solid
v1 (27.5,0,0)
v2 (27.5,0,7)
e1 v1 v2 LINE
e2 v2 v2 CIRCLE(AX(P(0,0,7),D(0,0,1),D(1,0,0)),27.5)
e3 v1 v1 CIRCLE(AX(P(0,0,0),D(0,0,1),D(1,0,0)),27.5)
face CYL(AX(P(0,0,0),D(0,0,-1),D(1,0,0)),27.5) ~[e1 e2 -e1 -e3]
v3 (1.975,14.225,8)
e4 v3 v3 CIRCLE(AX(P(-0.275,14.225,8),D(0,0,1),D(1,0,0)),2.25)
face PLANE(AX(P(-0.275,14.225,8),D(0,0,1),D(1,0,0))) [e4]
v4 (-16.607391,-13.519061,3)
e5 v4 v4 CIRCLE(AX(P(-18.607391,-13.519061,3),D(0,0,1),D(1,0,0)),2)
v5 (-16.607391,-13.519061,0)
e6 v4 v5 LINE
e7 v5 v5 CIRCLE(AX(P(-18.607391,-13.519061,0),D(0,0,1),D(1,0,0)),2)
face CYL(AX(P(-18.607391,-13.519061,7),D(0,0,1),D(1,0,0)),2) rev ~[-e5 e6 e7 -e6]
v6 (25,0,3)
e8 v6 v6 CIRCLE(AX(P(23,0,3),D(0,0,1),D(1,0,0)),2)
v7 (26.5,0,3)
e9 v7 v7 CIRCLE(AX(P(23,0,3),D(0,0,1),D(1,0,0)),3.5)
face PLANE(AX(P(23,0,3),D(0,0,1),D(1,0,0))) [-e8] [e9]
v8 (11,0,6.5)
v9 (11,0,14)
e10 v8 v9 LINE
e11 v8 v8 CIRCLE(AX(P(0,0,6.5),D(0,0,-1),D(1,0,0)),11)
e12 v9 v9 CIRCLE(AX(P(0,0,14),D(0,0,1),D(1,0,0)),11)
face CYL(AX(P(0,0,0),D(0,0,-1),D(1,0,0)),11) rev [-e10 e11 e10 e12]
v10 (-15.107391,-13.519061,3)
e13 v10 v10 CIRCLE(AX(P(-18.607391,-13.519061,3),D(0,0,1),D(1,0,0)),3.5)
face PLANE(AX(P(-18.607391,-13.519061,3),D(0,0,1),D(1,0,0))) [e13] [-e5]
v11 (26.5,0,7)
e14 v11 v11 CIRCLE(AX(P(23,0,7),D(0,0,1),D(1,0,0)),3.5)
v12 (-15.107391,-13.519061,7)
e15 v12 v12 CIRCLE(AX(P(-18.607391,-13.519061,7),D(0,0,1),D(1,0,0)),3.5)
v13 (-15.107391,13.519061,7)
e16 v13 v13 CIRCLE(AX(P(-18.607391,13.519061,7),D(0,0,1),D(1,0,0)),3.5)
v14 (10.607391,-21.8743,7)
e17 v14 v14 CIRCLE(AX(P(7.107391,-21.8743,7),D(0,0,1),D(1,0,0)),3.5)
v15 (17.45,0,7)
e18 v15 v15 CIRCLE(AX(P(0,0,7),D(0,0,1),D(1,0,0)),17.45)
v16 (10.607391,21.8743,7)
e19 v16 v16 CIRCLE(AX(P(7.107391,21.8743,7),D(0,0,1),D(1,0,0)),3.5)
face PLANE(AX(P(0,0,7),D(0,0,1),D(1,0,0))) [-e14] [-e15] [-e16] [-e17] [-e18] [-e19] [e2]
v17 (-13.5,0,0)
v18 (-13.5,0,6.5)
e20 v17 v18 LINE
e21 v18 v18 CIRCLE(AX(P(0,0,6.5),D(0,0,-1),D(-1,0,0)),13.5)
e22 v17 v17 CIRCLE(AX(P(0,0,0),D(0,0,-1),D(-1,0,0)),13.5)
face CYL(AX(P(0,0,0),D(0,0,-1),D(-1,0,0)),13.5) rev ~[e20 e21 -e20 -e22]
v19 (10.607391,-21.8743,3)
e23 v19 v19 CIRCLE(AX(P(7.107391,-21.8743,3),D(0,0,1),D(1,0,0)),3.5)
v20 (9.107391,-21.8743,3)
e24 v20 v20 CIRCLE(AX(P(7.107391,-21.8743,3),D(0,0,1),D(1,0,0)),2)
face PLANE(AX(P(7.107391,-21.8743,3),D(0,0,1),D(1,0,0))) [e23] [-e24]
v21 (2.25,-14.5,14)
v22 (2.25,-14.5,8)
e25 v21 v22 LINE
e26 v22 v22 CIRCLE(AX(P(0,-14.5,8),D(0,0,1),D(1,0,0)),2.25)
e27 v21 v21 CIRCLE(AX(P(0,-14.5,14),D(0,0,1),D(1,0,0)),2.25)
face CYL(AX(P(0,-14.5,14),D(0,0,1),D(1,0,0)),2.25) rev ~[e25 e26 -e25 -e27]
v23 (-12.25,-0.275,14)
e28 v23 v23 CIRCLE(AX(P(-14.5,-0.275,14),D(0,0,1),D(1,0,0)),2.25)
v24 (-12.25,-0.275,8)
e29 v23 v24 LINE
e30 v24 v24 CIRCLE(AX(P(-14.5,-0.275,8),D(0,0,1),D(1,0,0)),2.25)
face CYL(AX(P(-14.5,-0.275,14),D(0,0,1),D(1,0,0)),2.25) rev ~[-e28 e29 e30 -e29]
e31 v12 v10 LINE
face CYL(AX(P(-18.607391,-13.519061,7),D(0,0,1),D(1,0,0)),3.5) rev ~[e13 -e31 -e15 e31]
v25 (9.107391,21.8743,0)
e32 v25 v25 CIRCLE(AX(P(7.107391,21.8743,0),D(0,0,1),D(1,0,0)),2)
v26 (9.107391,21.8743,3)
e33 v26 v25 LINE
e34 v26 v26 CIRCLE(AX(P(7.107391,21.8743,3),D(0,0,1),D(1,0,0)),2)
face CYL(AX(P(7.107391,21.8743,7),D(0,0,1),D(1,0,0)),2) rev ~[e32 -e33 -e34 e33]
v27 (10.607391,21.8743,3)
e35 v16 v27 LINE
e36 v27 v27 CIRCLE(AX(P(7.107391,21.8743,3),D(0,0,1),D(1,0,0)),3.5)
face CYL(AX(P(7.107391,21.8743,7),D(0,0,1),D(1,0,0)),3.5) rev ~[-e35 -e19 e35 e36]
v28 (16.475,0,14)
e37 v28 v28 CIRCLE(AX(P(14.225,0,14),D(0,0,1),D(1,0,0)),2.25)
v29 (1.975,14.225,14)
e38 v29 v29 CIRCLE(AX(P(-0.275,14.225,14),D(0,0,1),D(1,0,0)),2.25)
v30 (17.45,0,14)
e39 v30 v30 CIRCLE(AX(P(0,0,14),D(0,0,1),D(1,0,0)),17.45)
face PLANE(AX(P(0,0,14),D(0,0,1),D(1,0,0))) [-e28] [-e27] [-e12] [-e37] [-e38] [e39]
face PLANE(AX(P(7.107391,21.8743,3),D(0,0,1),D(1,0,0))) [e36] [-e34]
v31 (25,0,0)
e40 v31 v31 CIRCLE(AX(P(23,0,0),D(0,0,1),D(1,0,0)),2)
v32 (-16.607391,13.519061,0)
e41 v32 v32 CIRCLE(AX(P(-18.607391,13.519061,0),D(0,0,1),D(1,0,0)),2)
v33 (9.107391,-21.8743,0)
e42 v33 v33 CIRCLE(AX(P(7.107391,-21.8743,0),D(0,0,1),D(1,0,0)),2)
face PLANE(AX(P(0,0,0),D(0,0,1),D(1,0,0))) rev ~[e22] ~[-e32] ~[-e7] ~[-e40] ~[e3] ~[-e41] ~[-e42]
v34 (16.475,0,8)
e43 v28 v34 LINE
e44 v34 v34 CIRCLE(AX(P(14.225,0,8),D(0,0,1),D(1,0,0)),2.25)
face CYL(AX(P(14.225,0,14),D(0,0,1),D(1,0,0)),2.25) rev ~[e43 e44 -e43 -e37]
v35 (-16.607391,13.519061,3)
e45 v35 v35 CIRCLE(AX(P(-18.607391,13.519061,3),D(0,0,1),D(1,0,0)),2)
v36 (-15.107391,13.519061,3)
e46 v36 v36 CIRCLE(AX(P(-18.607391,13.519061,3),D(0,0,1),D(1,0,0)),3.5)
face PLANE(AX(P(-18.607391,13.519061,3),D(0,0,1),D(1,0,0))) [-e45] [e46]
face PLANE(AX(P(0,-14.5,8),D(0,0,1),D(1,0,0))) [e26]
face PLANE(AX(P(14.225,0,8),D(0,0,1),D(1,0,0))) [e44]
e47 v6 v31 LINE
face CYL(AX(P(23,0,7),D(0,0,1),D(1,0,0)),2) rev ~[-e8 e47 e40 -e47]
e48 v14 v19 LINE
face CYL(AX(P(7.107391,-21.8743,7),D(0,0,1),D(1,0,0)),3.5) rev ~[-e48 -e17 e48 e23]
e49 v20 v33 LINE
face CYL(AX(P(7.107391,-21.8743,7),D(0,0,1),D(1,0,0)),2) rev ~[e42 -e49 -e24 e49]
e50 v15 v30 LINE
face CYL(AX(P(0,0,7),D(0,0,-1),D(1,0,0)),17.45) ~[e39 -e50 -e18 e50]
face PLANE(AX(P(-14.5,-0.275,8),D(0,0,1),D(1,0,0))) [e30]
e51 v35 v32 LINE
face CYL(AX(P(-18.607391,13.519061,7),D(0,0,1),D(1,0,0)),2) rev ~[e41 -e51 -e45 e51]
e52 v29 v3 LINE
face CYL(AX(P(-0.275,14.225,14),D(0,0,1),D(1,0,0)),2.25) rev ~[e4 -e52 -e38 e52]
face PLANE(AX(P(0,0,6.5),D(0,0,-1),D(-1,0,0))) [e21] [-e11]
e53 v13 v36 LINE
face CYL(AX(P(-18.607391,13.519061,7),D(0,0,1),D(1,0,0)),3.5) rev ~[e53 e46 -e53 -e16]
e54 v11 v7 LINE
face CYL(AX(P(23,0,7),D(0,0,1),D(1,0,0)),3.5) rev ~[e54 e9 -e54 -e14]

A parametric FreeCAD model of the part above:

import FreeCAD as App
import Part
import Sketcher

V = App.Vector
Q = App.Units.Quantity

doc = App.newDocument("Part")
body = doc.addObject("PartDesign::Body", "Body")

# Sketch on XY plane
sketch1 = doc.addObject("Sketcher::SketchObject", "Sketch")
body.addObject(sketch1)
sketch1.AttachmentSupport = (doc.XY_Plane, [""])
sketch1.MapMode = "FlatFace"
sketch1.addGeometry(Part.Circle(V(0, 0, 0), V(0, 0, 1), 28), False)
sketch1.addConstraint([
    Sketcher.Constraint("Coincident", 0, 3, -1, 1),
    Sketcher.Constraint("Diameter", 0, Q("55 mm")),
])
pad1 = doc.addObject("PartDesign::Pad", "Pad")
body.addObject(pad1)
pad1.Profile = sketch1
pad1.Length = 7

# Sketch on XY plane
sketch2 = doc.addObject("Sketcher::SketchObject", "Sketch001")
body.addObject(sketch2)
sketch2.AttachmentSupport = (doc.XY_Plane, [""])
sketch2.MapMode = "FlatFace"
sketch2.AttachmentOffset = App.Placement(V(0, 0, 7), App.Rotation())
sketch2.addGeometry([
    Part.Circle(V(0, 0, 0), V(0, 0, 1), 17),
    Part.Circle(V(0, 0, 0), V(0, 0, 1), 11),
], False)
sketch2.addConstraint([
    Sketcher.Constraint("Coincident", 0, 3, -1, 1),
    Sketcher.Constraint("Coincident", 1, 3, -1, 1),
    Sketcher.Constraint("Diameter", 1, Q("22 mm")),
    Sketcher.Constraint("Diameter", 0, Q("34.9 mm")),
])
pad2 = doc.addObject("PartDesign::Pad", "Pad001")
body.addObject(pad2)
pad2.Profile = sketch2
pad2.Length = 7

# Sketch on XY plane
sketch3 = doc.addObject("Sketcher::SketchObject", "Sketch002")
body.addObject(sketch3)
sketch3.AttachmentSupport = (doc.XY_Plane, [""])
sketch3.MapMode = "FlatFace"
sketch3.addGeometry(Part.Circle(V(0, 0, 0), V(0, 0, 1), 11), False)
sketch3.addConstraint([
    Sketcher.Constraint("Coincident", 0, 3, -1, 1),
    Sketcher.Constraint("Diameter", 0, Q("22 mm")),
])
pocket1 = doc.addObject("PartDesign::Pocket", "Pocket")
body.addObject(pocket1)
pocket1.Profile = sketch3
pocket1.Length = 7
pocket1.Reversed = True

# Sketch on XY plane
sketch4 = doc.addObject("Sketcher::SketchObject", "Sketch003")
body.addObject(sketch4)
sketch4.AttachmentSupport = (doc.XY_Plane, [""])
sketch4.MapMode = "FlatFace"
sketch4.AttachmentOffset = App.Placement(V(0, 0, 7), App.Rotation())
sketch4.addGeometry([
    Part.Circle(V(23, 0, 0), V(0, 0, 1), 2),  # 0
    Part.Circle(V(7.1, -21.9, 0), V(0, 0, 1), 2),  # 1
    Part.Circle(V(-18.6, -13.5, 0), V(0, 0, 1), 2),  # 2
    Part.Circle(V(-18.6, 13.5, 0), V(0, 0, 1), 2),  # 3
    Part.Circle(V(7.1, 21.9, 0), V(0, 0, 1), 2),  # 4
], False)
sketch4.addConstraint([
    Sketcher.Constraint("Equal", 0, 1),
    Sketcher.Constraint("Equal", 1, 2),
    Sketcher.Constraint("Equal", 2, 3),
    Sketcher.Constraint("Equal", 3, 4),
    Sketcher.Constraint("Symmetric", 2, 3, 3, 3, -1),
    Sketcher.Constraint("Symmetric", 1, 3, 4, 3, -1),
    Sketcher.Constraint("PointOnObject", 0, 3, -1),
    Sketcher.Constraint("Diameter", 0, Q("4 mm")),
    Sketcher.Constraint("DistanceX", -1, 1, 0, 3, Q("23 mm")),
    Sketcher.Constraint("DistanceY", 1, 3, -1, 1, Q("21.8743 mm")),
    Sketcher.Constraint("DistanceX", -1, 1, 1, 3, Q("7.107391 mm")),
    Sketcher.Constraint("DistanceX", 2, 3, -1, 1, Q("18.607391 mm")),
    Sketcher.Constraint("DistanceY", 2, 3, -1, 1, Q("13.519061 mm")),
])
pocket2 = doc.addObject("PartDesign::Pocket", "Pocket001")
body.addObject(pocket2)
pocket2.Profile = sketch4
pocket2.Length = 7

# Sketch on XY plane
sketch5 = doc.addObject("Sketcher::SketchObject", "Sketch004")
body.addObject(sketch5)
sketch5.AttachmentSupport = (doc.XY_Plane, [""])
sketch5.MapMode = "FlatFace"
sketch5.addGeometry(Part.Circle(V(0, 0, 0), V(0, 0, 1), 14), False)
sketch5.addConstraint([
    Sketcher.Constraint("Coincident", 0, 3, -1, 1),
    Sketcher.Constraint("Diameter", 0, Q("27 mm")),
])
pocket3 = doc.addObject("PartDesign::Pocket", "Pocket002")
body.addObject(pocket3)
pocket3.Profile = sketch5
pocket3.Length = 6.5
pocket3.Reversed = True

# Sketch on XY plane
sketch6 = doc.addObject("Sketcher::SketchObject", "Sketch005")
body.addObject(sketch6)
sketch6.AttachmentSupport = (doc.XY_Plane, [""])
sketch6.MapMode = "FlatFace"
sketch6.AttachmentOffset = App.Placement(V(0, 0, 14), App.Rotation())
sketch6.addGeometry([
    Part.Circle(V(14.2, 0, 0), V(0, 0, 1), 2.2),
    Part.Circle(V(0, -14.5, 0), V(0, 0, 1), 2.2),
    Part.Circle(V(-14.5, -0.3, 0), V(0, 0, 1), 2.2),
    Part.Circle(V(-0.3, 14.2, 0), V(0, 0, 1), 2.2),
], False)
sketch6.addConstraint([
    Sketcher.Constraint("Equal", 0, 1),
    Sketcher.Constraint("Equal", 1, 2),
    Sketcher.Constraint("Equal", 2, 3),
    Sketcher.Constraint("PointOnObject", 0, 3, -1),
    Sketcher.Constraint("PointOnObject", 1, 3, -2),
    Sketcher.Constraint("Diameter", 0, Q("4.5 mm")),
    Sketcher.Constraint("DistanceY", 1, 3, -1, 1, Q("14.5 mm")),
    Sketcher.Constraint("DistanceX", 2, 3, -1, 1, Q("14.5 mm")),
    Sketcher.Constraint("DistanceX", 3, 3, 0, 3, Q("14.5 mm")),
    Sketcher.Constraint("DistanceY", 2, 3, 3, 3, Q("14.5 mm")),
    Sketcher.Constraint("DistanceX", -1, 1, 0, 3, Q("14.225 mm")),
    Sketcher.Constraint("DistanceY", 2, 3, -1, 1, Q("0.275 mm")),
])
pocket4 = doc.addObject("PartDesign::Pocket", "Pocket003")
body.addObject(pocket4)
pocket4.Profile = sketch6
pocket4.Length = 6

# Sketch on XY plane
sketch7 = doc.addObject("Sketcher::SketchObject", "Sketch006")
body.addObject(sketch7)
sketch7.AttachmentSupport = (doc.XY_Plane, [""])
sketch7.MapMode = "FlatFace"
sketch7.AttachmentOffset = App.Placement(V(0, 0, 7), App.Rotation())
sketch7.addGeometry([
    Part.Circle(V(23, 0, 0), V(0, 0, 1), 3.5),  # 0
    Part.Circle(V(7.1, -21.9, 0), V(0, 0, 1), 3.5),  # 1
    Part.Circle(V(-18.6, -13.5, 0), V(0, 0, 1), 3.5),  # 2
    Part.Circle(V(-18.6, 13.5, 0), V(0, 0, 1), 3.5),  # 3
    Part.Circle(V(7.1, 21.9, 0), V(0, 0, 1), 3.5),  # 4
], False)
sketch7.addConstraint([
    Sketcher.Constraint("Equal", 0, 1),
    Sketcher.Constraint("Equal", 1, 2),
    Sketcher.Constraint("Equal", 2, 3),
    Sketcher.Constraint("Equal", 3, 4),
    Sketcher.Constraint("Symmetric", 2, 3, 3, 3, -1),
    Sketcher.Constraint("Symmetric", 1, 3, 4, 3, -1),
    Sketcher.Constraint("PointOnObject", 0, 3, -1),
    Sketcher.Constraint("Diameter", 0, Q("7 mm")),
    Sketcher.Constraint("DistanceX", -1, 1, 0, 3, Q("23 mm")),
    Sketcher.Constraint("DistanceY", 1, 3, -1, 1, Q("21.8743 mm")),
    Sketcher.Constraint("DistanceX", -1, 1, 1, 3, Q("7.107391 mm")),
    Sketcher.Constraint("DistanceX", 2, 3, -1, 1, Q("18.607391 mm")),
    Sketcher.Constraint("DistanceY", 2, 3, -1, 1, Q("13.519061 mm")),
])
pocket5 = doc.addObject("PartDesign::Pocket", "Pocket004")
body.addObject(pocket5)
pocket5.Profile = sketch7
pocket5.Length = 4

doc.recompute()
